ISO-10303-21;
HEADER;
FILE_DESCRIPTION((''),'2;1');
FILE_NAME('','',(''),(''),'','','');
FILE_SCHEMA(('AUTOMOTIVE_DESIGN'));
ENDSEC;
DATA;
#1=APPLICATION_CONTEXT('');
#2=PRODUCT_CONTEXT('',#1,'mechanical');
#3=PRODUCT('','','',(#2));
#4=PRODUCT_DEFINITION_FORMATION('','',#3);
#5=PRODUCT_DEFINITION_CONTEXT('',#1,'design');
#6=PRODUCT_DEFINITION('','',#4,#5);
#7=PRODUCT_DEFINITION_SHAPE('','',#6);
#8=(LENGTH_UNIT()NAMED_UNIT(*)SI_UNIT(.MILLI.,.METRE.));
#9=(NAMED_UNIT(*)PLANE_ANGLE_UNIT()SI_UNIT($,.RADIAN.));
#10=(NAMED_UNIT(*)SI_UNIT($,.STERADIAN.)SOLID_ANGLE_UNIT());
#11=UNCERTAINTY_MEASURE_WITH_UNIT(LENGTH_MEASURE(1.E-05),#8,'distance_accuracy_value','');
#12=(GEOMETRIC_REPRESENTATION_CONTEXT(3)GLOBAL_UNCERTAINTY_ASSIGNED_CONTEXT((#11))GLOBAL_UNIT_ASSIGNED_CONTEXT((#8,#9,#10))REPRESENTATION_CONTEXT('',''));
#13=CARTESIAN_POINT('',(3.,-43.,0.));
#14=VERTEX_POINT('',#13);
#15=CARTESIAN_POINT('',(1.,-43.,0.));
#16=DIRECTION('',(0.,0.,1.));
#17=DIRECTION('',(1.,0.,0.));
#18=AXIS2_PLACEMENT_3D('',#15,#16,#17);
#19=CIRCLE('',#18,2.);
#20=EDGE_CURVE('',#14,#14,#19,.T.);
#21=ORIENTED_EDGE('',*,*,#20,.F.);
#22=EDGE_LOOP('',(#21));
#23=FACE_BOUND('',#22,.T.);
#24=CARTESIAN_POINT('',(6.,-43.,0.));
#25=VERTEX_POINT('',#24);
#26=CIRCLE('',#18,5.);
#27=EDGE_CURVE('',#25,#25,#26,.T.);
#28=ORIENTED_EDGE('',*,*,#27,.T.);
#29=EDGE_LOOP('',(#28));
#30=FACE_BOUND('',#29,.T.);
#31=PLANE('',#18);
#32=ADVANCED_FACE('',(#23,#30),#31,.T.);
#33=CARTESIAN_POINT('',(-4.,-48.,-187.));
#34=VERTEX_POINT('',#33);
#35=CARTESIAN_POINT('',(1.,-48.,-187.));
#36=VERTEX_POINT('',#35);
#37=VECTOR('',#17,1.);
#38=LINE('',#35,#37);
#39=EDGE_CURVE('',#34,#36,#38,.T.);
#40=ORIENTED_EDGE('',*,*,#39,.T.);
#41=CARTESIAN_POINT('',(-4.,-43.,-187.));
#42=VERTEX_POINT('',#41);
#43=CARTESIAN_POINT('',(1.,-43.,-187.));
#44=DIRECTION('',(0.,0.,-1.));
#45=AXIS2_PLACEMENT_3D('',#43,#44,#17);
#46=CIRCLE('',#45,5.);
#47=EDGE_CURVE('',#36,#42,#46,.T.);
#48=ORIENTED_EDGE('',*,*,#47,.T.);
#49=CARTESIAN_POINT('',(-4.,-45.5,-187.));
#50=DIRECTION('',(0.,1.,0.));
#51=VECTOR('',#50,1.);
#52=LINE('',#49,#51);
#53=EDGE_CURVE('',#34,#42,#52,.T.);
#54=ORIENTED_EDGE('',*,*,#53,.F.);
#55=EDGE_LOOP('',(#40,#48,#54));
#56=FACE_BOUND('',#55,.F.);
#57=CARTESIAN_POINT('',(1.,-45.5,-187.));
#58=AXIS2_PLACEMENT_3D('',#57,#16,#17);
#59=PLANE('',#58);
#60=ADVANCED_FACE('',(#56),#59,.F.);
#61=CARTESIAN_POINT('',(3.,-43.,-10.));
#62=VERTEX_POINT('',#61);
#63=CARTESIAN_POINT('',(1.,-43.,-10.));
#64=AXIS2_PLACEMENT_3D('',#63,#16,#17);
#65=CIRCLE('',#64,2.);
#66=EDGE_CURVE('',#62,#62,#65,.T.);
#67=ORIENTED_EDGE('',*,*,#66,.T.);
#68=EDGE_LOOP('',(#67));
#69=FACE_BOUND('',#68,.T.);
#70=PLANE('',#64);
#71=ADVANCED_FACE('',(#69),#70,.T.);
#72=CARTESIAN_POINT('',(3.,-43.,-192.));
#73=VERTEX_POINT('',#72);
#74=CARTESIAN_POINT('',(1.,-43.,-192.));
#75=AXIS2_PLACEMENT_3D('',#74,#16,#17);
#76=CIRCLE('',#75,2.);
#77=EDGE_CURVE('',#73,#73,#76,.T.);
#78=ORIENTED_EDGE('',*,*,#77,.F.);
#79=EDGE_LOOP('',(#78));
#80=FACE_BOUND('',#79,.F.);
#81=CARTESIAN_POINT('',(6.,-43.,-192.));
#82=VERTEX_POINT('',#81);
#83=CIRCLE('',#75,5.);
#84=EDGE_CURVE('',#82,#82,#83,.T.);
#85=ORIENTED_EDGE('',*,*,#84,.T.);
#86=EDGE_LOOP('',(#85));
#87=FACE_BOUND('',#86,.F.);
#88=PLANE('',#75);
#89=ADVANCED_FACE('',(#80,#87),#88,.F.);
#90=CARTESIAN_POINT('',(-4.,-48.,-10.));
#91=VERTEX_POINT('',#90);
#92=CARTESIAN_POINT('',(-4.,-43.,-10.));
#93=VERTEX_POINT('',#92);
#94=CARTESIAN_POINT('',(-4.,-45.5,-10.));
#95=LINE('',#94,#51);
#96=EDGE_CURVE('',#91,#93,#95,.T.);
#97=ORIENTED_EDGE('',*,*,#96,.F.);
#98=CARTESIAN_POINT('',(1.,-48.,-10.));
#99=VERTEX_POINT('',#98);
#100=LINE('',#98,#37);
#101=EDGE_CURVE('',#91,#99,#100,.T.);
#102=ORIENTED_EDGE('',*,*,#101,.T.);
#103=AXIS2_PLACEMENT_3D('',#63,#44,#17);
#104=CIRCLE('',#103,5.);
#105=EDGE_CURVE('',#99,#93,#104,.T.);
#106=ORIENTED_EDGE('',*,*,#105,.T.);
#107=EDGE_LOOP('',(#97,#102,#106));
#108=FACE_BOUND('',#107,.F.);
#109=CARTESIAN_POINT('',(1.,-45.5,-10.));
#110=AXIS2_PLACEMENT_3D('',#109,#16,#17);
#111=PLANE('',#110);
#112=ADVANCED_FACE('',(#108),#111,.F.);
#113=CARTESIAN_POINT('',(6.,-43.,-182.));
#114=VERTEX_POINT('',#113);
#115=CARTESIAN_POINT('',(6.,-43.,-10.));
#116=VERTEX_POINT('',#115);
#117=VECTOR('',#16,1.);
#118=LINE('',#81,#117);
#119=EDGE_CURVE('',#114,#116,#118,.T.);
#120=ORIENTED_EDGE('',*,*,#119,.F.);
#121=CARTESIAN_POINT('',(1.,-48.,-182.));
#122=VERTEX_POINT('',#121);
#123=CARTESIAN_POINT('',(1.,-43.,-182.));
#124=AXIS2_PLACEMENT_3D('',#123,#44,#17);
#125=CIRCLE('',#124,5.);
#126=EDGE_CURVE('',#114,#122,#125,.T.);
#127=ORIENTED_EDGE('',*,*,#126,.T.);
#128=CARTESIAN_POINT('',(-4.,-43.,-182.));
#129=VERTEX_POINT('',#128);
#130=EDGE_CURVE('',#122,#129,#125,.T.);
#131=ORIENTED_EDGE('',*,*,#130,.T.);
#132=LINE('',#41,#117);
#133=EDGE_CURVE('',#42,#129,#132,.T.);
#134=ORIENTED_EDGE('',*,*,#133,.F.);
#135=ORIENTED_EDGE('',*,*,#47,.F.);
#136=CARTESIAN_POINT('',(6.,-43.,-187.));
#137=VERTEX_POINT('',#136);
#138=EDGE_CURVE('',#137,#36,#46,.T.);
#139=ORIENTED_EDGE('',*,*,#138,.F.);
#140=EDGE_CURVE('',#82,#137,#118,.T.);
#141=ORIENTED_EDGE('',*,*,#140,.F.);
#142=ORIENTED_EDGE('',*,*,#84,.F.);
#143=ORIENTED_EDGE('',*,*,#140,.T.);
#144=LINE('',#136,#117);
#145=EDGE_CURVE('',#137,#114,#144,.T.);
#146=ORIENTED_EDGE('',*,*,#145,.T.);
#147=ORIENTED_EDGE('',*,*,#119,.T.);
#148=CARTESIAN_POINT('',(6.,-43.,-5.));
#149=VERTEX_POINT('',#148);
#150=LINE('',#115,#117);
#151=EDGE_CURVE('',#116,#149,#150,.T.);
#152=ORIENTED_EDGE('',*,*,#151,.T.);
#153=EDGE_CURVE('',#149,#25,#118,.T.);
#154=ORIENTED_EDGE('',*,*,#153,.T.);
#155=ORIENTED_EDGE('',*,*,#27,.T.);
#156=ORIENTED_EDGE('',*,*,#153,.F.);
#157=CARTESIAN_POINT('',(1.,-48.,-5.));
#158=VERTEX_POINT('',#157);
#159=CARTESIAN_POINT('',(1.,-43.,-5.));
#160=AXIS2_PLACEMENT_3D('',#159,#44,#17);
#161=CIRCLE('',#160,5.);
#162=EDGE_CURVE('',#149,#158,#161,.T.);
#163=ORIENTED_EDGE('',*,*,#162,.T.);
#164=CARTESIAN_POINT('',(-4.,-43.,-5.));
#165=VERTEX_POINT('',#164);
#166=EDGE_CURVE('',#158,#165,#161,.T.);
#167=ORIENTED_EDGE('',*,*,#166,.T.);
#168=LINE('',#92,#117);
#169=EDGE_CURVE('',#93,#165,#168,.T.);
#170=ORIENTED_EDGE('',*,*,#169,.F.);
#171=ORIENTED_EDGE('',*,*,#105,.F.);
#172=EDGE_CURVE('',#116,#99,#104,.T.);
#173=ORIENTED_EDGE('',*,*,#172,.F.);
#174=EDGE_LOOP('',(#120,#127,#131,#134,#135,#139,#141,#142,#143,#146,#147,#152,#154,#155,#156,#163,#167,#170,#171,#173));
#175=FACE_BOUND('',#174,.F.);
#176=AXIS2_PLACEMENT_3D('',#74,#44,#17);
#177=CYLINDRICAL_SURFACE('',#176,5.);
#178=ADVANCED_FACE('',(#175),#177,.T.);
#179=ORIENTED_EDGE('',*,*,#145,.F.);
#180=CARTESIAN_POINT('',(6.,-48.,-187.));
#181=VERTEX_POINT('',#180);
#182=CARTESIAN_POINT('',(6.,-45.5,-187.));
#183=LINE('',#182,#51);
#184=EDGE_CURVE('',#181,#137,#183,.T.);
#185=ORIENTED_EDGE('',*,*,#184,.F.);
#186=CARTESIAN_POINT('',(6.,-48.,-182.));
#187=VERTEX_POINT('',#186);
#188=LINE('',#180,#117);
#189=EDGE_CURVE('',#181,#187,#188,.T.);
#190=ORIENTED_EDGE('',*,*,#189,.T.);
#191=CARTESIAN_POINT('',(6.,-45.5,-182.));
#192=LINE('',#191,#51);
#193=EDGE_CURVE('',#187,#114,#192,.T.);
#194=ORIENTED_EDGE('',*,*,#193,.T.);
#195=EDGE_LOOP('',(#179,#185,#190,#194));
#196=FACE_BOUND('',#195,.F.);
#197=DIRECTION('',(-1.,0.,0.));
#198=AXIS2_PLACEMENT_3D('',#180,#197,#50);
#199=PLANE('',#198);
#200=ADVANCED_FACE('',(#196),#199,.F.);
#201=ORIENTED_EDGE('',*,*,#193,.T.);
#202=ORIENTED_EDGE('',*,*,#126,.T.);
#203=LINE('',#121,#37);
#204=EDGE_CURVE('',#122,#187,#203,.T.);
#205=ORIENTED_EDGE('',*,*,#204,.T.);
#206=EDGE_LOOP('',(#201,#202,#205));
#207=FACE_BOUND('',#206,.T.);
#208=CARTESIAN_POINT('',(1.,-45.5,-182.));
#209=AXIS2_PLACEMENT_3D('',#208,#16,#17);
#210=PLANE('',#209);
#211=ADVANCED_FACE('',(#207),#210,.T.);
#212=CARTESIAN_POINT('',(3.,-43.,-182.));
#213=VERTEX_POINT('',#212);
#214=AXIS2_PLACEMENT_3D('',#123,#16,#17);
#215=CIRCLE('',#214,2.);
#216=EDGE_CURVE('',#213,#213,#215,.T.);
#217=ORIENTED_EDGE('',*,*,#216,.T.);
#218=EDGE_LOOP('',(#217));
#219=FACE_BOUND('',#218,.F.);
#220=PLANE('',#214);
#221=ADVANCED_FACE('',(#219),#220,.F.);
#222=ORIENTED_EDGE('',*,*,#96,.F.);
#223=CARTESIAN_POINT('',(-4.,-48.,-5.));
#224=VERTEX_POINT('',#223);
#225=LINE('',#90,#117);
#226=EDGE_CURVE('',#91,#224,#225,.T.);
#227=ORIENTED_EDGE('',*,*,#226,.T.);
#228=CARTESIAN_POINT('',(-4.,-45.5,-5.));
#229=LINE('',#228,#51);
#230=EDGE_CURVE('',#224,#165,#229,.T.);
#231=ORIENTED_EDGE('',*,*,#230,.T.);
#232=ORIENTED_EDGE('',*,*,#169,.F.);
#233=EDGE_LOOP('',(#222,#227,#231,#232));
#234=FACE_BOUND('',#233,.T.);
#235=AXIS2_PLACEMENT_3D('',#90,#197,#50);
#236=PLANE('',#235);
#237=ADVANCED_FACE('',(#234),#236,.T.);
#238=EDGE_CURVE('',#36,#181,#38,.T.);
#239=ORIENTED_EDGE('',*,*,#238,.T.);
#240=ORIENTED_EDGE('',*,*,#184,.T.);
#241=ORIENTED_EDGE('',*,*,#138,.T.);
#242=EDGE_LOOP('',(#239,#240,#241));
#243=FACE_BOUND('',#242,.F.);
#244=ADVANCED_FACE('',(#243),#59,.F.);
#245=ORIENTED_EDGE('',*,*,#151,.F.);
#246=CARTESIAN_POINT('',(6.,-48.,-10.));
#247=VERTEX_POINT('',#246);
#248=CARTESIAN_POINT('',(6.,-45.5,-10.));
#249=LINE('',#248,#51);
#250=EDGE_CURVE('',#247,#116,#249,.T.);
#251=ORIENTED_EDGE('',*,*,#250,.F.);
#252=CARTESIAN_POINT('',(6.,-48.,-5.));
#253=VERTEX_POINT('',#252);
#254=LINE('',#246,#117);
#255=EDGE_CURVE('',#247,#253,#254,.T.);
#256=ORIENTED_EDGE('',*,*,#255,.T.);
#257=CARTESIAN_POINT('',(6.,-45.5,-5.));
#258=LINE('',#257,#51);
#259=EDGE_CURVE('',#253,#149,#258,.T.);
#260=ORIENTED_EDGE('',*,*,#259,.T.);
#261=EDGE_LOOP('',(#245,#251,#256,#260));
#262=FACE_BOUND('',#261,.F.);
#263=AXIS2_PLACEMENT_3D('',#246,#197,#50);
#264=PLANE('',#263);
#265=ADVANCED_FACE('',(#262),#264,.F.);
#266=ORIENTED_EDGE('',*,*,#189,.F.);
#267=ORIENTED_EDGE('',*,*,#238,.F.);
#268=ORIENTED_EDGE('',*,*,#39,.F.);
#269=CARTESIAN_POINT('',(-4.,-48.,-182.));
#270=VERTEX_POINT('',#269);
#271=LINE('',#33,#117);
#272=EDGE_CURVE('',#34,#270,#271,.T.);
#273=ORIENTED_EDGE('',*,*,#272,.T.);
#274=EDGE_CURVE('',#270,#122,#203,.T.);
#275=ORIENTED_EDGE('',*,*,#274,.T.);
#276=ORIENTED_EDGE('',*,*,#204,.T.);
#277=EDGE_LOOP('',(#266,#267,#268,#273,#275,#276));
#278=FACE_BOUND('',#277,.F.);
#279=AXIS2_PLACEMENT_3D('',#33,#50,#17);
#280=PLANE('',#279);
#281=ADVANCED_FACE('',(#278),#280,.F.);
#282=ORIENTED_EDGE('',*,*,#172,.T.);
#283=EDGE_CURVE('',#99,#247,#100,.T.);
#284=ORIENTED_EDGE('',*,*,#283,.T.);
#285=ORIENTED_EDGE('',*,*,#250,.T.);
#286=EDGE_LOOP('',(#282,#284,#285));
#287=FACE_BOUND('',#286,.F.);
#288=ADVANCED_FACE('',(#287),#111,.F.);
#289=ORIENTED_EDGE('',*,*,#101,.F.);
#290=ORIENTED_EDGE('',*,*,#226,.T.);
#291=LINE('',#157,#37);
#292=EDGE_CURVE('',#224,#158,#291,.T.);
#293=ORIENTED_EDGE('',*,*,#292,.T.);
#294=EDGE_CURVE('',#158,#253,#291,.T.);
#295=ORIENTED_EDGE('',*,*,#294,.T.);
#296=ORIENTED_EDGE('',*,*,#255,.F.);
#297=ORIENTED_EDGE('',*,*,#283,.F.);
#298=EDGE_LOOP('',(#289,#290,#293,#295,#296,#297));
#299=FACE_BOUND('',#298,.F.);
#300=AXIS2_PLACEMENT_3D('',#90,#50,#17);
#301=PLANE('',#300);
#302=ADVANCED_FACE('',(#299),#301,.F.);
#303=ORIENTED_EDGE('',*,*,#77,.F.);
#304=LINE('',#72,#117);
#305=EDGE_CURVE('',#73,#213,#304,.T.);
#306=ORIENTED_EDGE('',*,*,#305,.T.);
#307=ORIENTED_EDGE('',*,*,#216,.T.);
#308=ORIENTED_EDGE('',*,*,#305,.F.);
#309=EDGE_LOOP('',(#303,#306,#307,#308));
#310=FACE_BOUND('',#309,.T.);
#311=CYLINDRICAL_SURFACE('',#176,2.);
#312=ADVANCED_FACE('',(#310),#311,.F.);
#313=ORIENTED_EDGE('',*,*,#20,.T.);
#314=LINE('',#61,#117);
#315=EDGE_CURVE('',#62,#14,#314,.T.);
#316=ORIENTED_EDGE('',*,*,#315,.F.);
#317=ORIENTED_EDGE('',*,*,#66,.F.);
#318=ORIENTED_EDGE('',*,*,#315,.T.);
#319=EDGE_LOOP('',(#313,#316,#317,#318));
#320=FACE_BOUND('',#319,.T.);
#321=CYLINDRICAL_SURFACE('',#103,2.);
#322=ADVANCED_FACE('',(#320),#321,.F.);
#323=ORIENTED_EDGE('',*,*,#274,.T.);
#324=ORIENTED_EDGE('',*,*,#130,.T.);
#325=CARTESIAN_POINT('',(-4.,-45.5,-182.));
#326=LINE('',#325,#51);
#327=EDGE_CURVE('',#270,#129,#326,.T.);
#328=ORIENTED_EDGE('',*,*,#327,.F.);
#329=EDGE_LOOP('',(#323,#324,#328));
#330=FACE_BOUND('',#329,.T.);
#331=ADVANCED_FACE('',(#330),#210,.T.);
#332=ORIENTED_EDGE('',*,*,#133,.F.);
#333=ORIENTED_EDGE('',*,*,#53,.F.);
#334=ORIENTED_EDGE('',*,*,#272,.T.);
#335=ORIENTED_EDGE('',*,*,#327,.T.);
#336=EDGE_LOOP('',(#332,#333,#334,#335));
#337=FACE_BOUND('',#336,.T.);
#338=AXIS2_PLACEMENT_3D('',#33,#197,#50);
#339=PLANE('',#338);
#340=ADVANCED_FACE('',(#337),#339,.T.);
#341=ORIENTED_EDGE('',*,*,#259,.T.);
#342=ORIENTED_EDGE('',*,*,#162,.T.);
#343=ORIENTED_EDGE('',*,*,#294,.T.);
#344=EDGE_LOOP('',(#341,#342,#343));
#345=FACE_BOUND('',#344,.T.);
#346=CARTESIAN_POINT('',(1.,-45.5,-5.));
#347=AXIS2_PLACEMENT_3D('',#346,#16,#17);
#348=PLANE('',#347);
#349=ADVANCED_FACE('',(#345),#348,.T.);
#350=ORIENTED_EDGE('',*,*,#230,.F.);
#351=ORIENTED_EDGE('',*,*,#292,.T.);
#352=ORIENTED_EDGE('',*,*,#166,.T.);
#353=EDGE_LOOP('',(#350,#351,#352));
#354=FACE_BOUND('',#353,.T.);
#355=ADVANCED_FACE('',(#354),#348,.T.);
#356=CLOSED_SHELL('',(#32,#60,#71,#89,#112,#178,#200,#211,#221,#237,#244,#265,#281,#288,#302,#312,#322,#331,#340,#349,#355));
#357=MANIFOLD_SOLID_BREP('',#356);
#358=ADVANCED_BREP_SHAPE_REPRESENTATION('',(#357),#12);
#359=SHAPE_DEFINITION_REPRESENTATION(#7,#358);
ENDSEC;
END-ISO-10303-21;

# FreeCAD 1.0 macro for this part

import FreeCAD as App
import Part
import Sketcher
from FreeCAD import Vector
Q = App.Units.Quantity

doc = App.newDocument("Part")
params = doc.addObject("Spreadsheet::Sheet", "Params")
for row, (alias, value) in enumerate([
    ("sketch1_diameter", "10 mm"),
    ("pad1_length", "192 mm"),
    ("sketch2_width", "10 mm"),
    ("sketch2_height", "5 mm"),
    ("pad2_length", "5 mm"),
    ("sketch3_width", "10 mm"),
    ("sketch3_height", "5 mm"),
    ("pad3_length", "5 mm"),
    ("sketch4_diameter", "4 mm"),
    ("pocket1_length", "10 mm"),
    ("sketch5_diameter", "4 mm"),
    ("pocket2_length", "10 mm"),
], start=1):
    params.set(f"A{row}", alias)
    params.set(f"B{row}", "=" + value)
    params.setAlias(f"B{row}", alias)

body = doc.addObject("PartDesign::Body", "Body")

# Sketch on XY plane
sketch1 = body.newObject("Sketcher::SketchObject", "Sketch")
sketch1.AttachmentSupport = (doc.getObject("XY_Plane"), [""])
sketch1.MapMode = "FlatFace"
sketch1.addGeometry(Part.Circle(Vector(0, 0, 0), Vector(0, 0, 1), 5), False)
sketch1.addConstraint([
    Sketcher.Constraint("Coincident", 0, 3, -1, 1),
    Sketcher.Constraint("Diameter", 0, Q("10 mm")),
])
sketch1.setExpression("Constraints[1]", "Params.sketch1_diameter")
pad1 = body.newObject("PartDesign::Pad", "Pad")
pad1.Profile = sketch1
pad1.setExpression("Length", "Params.pad1_length")

# Sketch on XY plane
sketch2 = body.newObject("Sketcher::SketchObject", "Sketch001")
sketch2.AttachmentSupport = (doc.getObject("XY_Plane"), [""])
sketch2.MapMode = "FlatFace"
sketch2.AttachmentOffset = App.Placement(Vector(0, 0, 182), App.Rotation())
sketch2.addGeometry([
    Part.LineSegment(Vector(-5, 0, 0), Vector(-5, -5, 0)),
    Part.LineSegment(Vector(-5, -5, 0), Vector(5, -5, 0)),
    Part.LineSegment(Vector(5, -5, 0), Vector(5, 0, 0)),
    Part.LineSegment(Vector(5, 0, 0), Vector(-5, 0, 0)),
], False)
sketch2.addConstraint([
    Sketcher.Constraint("Coincident", 0, 2, 1, 1),
    Sketcher.Constraint("Coincident", 1, 2, 2, 1),
    Sketcher.Constraint("Coincident", 2, 2, 3, 1),
    Sketcher.Constraint("Coincident", 3, 2, 0, 1),
    Sketcher.Constraint("Vertical", 0),
    Sketcher.Constraint("Horizontal", 1),
    Sketcher.Constraint("Vertical", 2),
    Sketcher.Constraint("Horizontal", 3),
    Sketcher.Constraint("Symmetric", 2, 2, 3, 2, -1, 1),
    Sketcher.Constraint("DistanceX", 1, 1, 1, 2, Q("10 mm")),
    Sketcher.Constraint("DistanceY", 0, 2, 0, 1, Q("5 mm")),
])
sketch2.setExpression("Constraints[9]", "Params.sketch2_width")
sketch2.setExpression("Constraints[10]", "Params.sketch2_height")
pad2 = body.newObject("PartDesign::Pad", "Pad001")
pad2.Profile = sketch2
pad2.setExpression("Length", "Params.pad2_length")

# Sketch on XY plane
sketch3 = body.newObject("Sketcher::SketchObject", "Sketch002")
sketch3.AttachmentSupport = (doc.getObject("XY_Plane"), [""])
sketch3.MapMode = "FlatFace"
sketch3.AttachmentOffset = App.Placement(Vector(0, 0, 5), App.Rotation())
sketch3.addGeometry([
    Part.LineSegment(Vector(-5, 0, 0), Vector(-5, -5, 0)),
    Part.LineSegment(Vector(-5, -5, 0), Vector(5, -5, 0)),
    Part.LineSegment(Vector(5, -5, 0), Vector(5, 0, 0)),
    Part.LineSegment(Vector(5, 0, 0), Vector(-5, 0, 0)),
], False)
sketch3.addConstraint([
    Sketcher.Constraint("Coincident", 0, 2, 1, 1),
    Sketcher.Constraint("Coincident", 1, 2, 2, 1),
    Sketcher.Constraint("Coincident", 2, 2, 3, 1),
    Sketcher.Constraint("Coincident", 3, 2, 0, 1),
    Sketcher.Constraint("Vertical", 0),
    Sketcher.Constraint("Horizontal", 1),
    Sketcher.Constraint("Vertical", 2),
    Sketcher.Constraint("Horizontal", 3),
    Sketcher.Constraint("Symmetric", 2, 2, 3, 2, -1, 1),
    Sketcher.Constraint("DistanceX", 1, 1, 1, 2, Q("10 mm")),
    Sketcher.Constraint("DistanceY", 0, 2, 0, 1, Q("5 mm")),
])
sketch3.setExpression("Constraints[9]", "Params.sketch3_width")
sketch3.setExpression("Constraints[10]", "Params.sketch3_height")
pad3 = body.newObject("PartDesign::Pad", "Pad002")
pad3.Profile = sketch3
pad3.setExpression("Length", "Params.pad3_length")

# Sketch on XY plane
sketch4 = body.newObject("Sketcher::SketchObject", "Sketch003")
sketch4.AttachmentSupport = (doc.getObject("XY_Plane"), [""])
sketch4.MapMode = "FlatFace"
sketch4.addGeometry(Part.Circle(Vector(0, 0, 0), Vector(0, 0, 1), 2), False)
sketch4.addConstraint([
    Sketcher.Constraint("Coincident", 0, 3, -1, 1),
    Sketcher.Constraint("Diameter", 0, Q("4 mm")),
])
sketch4.setExpression("Constraints[1]", "Params.sketch4_diameter")
pocket1 = body.newObject("PartDesign::Pocket", "Pocket")
pocket1.Profile = sketch4
pocket1.setExpression("Length", "Params.pocket1_length")
pocket1.Reversed = True

# Sketch on XY plane
sketch5 = body.newObject("Sketcher::SketchObject", "Sketch004")
sketch5.AttachmentSupport = (doc.getObject("XY_Plane"), [""])
sketch5.MapMode = "FlatFace"
sketch5.AttachmentOffset = App.Placement(Vector(0, 0, 182), App.Rotation())
sketch5.addGeometry(Part.Circle(Vector(0, 0, 0), Vector(0, 0, 1), 2), False)
sketch5.addConstraint([
    Sketcher.Constraint("Coincident", 0, 3, -1, 1),
    Sketcher.Constraint("Diameter", 0, Q("4 mm")),
])
sketch5.setExpression("Constraints[1]", "Params.sketch5_diameter")
pocket2 = body.newObject("PartDesign::Pocket", "Pocket001")
pocket2.Profile = sketch5
pocket2.setExpression("Length", "Params.pocket2_length")
pocket2.Reversed = True
body2 = doc.addObject("PartDesign::Body", "Body001")
doc.recompute()

body.Placement = App.Placement(Vector(1, -43, -192), App.Rotation(Vector(0, 0, 1), 0))
boolean = body2.newObject("PartDesign::Boolean", "Boolean")
boolean.Type = "Fuse"
boolean.addObjects([body])

doc.recompute()
